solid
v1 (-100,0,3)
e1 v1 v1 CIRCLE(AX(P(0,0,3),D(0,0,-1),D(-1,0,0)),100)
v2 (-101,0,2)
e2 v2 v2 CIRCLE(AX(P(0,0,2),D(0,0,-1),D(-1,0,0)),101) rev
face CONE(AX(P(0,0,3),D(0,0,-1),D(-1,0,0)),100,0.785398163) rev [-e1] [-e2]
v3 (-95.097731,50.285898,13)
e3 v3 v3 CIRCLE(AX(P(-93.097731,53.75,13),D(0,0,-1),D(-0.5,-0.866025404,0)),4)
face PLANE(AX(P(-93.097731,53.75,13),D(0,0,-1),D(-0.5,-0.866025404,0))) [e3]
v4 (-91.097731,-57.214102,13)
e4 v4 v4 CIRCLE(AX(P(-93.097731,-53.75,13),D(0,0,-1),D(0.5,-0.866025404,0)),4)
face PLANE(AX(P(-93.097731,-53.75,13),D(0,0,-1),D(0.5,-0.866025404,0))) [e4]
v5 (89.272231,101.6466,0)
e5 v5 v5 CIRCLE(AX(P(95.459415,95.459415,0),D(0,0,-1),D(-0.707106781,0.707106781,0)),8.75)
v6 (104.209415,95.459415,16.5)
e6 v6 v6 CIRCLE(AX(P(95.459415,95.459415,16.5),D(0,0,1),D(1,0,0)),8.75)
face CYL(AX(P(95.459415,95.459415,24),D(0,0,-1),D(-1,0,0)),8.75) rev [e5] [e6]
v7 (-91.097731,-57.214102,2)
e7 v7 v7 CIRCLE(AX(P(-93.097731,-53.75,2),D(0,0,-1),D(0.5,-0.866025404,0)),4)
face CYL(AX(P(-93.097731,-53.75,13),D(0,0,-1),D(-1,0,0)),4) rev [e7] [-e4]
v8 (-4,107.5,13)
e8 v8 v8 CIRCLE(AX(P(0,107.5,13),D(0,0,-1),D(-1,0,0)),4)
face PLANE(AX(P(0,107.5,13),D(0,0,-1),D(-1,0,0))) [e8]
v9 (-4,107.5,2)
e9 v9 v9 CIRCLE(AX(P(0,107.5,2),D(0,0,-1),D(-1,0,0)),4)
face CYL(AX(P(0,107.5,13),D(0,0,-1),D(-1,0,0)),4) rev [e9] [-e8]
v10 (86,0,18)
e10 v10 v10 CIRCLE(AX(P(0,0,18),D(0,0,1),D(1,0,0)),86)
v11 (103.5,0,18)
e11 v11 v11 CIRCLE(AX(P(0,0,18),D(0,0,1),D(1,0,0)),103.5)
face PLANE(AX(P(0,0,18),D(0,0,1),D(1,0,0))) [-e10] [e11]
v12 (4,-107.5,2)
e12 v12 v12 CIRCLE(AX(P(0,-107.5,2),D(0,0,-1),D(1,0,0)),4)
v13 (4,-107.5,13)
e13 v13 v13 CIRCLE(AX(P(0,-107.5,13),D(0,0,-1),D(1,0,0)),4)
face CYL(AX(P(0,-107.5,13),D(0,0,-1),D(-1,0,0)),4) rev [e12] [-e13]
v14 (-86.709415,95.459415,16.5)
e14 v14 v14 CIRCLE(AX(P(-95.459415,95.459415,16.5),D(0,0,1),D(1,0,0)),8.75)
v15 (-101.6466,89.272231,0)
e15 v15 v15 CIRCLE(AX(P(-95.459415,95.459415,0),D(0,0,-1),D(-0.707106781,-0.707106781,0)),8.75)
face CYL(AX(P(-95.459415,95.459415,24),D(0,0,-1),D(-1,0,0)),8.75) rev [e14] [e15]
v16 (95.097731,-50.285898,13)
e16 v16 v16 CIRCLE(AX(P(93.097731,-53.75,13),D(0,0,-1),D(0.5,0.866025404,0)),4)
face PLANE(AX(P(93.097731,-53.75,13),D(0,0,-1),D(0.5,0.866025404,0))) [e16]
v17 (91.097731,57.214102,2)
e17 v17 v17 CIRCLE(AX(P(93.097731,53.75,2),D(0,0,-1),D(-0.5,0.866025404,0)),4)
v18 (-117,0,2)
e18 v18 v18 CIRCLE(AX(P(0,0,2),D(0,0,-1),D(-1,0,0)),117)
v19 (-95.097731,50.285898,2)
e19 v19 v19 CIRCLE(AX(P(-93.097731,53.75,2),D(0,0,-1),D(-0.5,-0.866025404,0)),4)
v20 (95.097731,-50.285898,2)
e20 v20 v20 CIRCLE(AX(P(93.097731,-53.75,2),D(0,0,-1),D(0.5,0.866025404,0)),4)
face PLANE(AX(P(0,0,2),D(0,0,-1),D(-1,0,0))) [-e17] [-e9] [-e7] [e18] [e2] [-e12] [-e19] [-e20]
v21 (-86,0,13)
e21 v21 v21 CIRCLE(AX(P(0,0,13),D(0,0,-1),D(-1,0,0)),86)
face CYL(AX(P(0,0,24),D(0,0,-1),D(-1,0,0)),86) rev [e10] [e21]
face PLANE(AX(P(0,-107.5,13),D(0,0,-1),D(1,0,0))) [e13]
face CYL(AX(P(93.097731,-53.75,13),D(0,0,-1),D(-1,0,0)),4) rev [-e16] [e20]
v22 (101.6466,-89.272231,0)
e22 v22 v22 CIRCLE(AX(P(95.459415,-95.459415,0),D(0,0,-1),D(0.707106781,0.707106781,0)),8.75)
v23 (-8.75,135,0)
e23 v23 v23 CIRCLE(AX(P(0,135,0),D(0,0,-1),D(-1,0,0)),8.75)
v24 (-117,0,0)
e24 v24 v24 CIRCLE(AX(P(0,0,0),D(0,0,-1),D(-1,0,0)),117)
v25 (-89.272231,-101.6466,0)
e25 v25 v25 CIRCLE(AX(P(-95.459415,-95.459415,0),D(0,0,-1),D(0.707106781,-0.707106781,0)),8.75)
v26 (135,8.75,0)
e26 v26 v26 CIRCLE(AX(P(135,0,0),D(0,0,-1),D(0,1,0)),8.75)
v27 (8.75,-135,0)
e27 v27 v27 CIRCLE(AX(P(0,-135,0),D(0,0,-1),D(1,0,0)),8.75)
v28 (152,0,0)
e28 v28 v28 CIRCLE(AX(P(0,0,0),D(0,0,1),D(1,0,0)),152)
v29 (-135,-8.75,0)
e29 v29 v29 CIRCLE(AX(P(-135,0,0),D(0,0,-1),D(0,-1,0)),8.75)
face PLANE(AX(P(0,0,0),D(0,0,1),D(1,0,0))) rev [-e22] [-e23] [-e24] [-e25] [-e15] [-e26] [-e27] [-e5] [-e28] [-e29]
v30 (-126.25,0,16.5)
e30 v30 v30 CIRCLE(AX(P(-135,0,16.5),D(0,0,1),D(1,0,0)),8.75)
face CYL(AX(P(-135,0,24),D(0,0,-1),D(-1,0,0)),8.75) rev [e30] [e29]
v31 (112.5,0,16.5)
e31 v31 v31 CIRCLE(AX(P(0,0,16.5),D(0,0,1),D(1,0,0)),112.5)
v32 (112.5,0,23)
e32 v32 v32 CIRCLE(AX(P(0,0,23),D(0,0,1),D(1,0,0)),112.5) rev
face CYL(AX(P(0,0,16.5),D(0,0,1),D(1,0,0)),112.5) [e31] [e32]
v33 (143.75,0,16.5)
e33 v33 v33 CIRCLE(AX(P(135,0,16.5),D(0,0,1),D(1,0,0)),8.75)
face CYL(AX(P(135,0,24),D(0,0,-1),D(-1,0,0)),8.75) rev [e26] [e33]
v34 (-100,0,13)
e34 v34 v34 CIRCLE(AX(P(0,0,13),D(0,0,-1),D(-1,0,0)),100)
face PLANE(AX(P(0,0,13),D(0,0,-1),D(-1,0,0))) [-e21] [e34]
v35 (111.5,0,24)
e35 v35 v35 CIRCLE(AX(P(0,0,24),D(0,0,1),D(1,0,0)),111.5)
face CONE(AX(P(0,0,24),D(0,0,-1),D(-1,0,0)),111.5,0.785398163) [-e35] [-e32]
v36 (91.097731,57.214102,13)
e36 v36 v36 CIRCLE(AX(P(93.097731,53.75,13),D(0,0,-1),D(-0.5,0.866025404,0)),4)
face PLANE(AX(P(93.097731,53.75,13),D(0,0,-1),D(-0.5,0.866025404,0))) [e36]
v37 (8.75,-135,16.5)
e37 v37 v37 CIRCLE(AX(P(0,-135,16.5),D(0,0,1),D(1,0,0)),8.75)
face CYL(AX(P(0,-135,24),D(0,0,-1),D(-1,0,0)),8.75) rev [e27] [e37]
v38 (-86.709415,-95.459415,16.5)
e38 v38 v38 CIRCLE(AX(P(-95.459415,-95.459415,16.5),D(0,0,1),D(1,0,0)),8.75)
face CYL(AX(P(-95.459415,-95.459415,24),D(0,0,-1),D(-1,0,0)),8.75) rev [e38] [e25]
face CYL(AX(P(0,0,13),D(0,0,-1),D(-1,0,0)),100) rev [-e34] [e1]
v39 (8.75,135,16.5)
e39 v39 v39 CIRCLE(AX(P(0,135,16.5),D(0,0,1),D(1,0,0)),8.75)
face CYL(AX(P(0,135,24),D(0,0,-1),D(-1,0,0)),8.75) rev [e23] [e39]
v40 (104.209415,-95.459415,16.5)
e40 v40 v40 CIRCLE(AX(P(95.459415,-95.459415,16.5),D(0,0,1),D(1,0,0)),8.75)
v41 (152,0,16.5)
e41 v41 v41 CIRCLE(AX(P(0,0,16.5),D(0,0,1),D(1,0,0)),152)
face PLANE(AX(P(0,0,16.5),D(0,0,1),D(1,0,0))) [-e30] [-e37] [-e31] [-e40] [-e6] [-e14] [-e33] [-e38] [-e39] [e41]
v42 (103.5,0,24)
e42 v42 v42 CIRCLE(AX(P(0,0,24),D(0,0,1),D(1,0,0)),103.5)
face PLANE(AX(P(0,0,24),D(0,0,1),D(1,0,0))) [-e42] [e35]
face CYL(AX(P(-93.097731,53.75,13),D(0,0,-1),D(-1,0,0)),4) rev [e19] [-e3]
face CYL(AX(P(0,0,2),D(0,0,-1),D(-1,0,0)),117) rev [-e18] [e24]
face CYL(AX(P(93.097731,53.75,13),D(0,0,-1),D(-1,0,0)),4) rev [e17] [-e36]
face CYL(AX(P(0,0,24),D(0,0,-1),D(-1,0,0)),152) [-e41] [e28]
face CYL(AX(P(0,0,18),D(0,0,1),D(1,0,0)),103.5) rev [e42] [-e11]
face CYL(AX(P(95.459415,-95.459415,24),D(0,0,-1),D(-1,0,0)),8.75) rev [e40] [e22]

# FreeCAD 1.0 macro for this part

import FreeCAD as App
import Part
import Sketcher

V = App.Vector
Q = App.Units.Quantity


def edges_at(feature, points):
    """Names of the edges that pass closest to the given points."""
    edges = feature.Shape.Edges
    near = lambda p: min(range(len(edges)), key=lambda i: edges[i].distToShape(Part.Vertex(*p))[0])
    return sorted({f"Edge{near(p) + 1}" for p in points})

doc = App.newDocument("Part")
body = doc.addObject("PartDesign::Body", "Body")

# Sketch on XY plane
sketch1 = doc.addObject("Sketcher::SketchObject", "Sketch")
body.addObject(sketch1)
sketch1.AttachmentSupport = (doc.XY_Plane, [""])
sketch1.MapMode = "FlatFace"
sketch1.addGeometry([
    Part.Circle(V(0, 0, 0), V(0, 0, 1), 152),
    Part.Circle(V(0, 0, 0), V(0, 0, 1), 86),
], False)
sketch1.addConstraint([
    Sketcher.Constraint("Coincident", 0, 3, -1, 1),
    Sketcher.Constraint("Coincident", 1, 3, -1, 1),
    Sketcher.Constraint("Diameter", 0, Q("304 mm")),
    Sketcher.Constraint("Diameter", 1, Q("172 mm")),
])
pad1 = doc.addObject("PartDesign::Pad", "Pad")
body.addObject(pad1)
pad1.Profile = sketch1
pad1.Length = 24

# Sketch on XY plane
sketch2 = doc.addObject("Sketcher::SketchObject", "Sketch001")
body.addObject(sketch2)
sketch2.AttachmentSupport = (doc.XY_Plane, [""])
sketch2.MapMode = "FlatFace"
sketch2.AttachmentOffset = App.Placement(V(0, 0, 16.5), App.Rotation())
sketch2.addGeometry([
    Part.Circle(V(0, 0, 0), V(0, 0, 1), 152),
    Part.Circle(V(0, 0, 0), V(0, 0, 1), 112.5),
], False)
sketch2.addConstraint([
    Sketcher.Constraint("Coincident", 0, 3, -1, 1),
    Sketcher.Constraint("Coincident", 1, 3, -1, 1),
    Sketcher.Constraint("Diameter", 0, Q("304 mm")),
    Sketcher.Constraint("Diameter", 1, Q("225 mm")),
])
pocket1 = doc.addObject("PartDesign::Pocket", "Pocket")
body.addObject(pocket1)
pocket1.Profile = sketch2
pocket1.Length = 7.5
pocket1.Reversed = True

# Sketch on XY plane
sketch3 = doc.addObject("Sketcher::SketchObject", "Sketch002")
body.addObject(sketch3)
sketch3.AttachmentSupport = (doc.XY_Plane, [""])
sketch3.MapMode = "FlatFace"
sketch3.AttachmentOffset = App.Placement(V(0, 0, 24), App.Rotation())
sketch3.addGeometry(Part.Circle(V(0, 0, 0), V(0, 0, 1), 103.5), False)
sketch3.addConstraint([
    Sketcher.Constraint("Coincident", 0, 3, -1, 1),
    Sketcher.Constraint("Diameter", 0, Q("207 mm")),
])
pocket2 = doc.addObject("PartDesign::Pocket", "Pocket001")
body.addObject(pocket2)
pocket2.Profile = sketch3
pocket2.Length = 6
doc.recompute()

chamfer = doc.addObject("PartDesign::Chamfer", "Chamfer")
body.addObject(chamfer)
chamfer.Base = (pocket2, edges_at(pocket2, [(-112.5, 0, 24)]))
chamfer.Size = 1

# Sketch on XY plane
sketch4 = doc.addObject("Sketcher::SketchObject", "Sketch003")
body.addObject(sketch4)
sketch4.AttachmentSupport = (doc.XY_Plane, [""])
sketch4.MapMode = "FlatFace"
sketch4.addGeometry(Part.Circle(V(0, 0, 0), V(0, 0, 1), 117), False)
sketch4.addConstraint([
    Sketcher.Constraint("Coincident", 0, 3, -1, 1),
    Sketcher.Constraint("Diameter", 0, Q("234 mm")),
])
pocket3 = doc.addObject("PartDesign::Pocket", "Pocket002")
body.addObject(pocket3)
pocket3.Profile = sketch4
pocket3.Length = 2
pocket3.Reversed = True

# Sketch on XY plane
sketch5 = doc.addObject("Sketcher::SketchObject", "Sketch004")
body.addObject(sketch5)
sketch5.AttachmentSupport = (doc.XY_Plane, [""])
sketch5.MapMode = "FlatFace"
sketch5.AttachmentOffset = App.Placement(V(0, 0, 2), App.Rotation())
sketch5.addGeometry(Part.Circle(V(0, 0, 0), V(0, 0, 1), 100), False)
sketch5.addConstraint([
    Sketcher.Constraint("Coincident", 0, 3, -1, 1),
    Sketcher.Constraint("Diameter", 0, Q("200 mm")),
])
pocket4 = doc.addObject("PartDesign::Pocket", "Pocket003")
body.addObject(pocket4)
pocket4.Profile = sketch5
pocket4.Length = 11
pocket4.Reversed = True
doc.recompute()

chamfer2 = doc.addObject("PartDesign::Chamfer", "Chamfer001")
body.addObject(chamfer2)
chamfer2.Base = (pocket4, edges_at(pocket4, [(100, 0, 2)]))
chamfer2.Size = 1

# Sketch on XY plane
sketch6 = doc.addObject("Sketcher::SketchObject", "Sketch005")
body.addObject(sketch6)
sketch6.AttachmentSupport = (doc.XY_Plane, [""])
sketch6.MapMode = "FlatFace"
sketch6.AttachmentOffset = App.Placement(V(0, 0, 2), App.Rotation())
sketch6.addGeometry(Part.Circle(V(0, 107.5, 0), V(0, 0, 1), 4), False)
sketch6.addConstraint([
    Sketcher.Constraint("PointOnObject", 0, 3, -2),
    Sketcher.Constraint("Diameter", 0, Q("8 mm")),
    Sketcher.Constraint("DistanceY", -1, 1, 0, 3, Q("107.5 mm")),
])
pocket5 = doc.addObject("PartDesign::Pocket", "Pocket004")
body.addObject(pocket5)
pocket5.Profile = sketch6
pocket5.Length = 11
pocket5.Reversed = True
doc.recompute()

polarpattern = doc.addObject("PartDesign::PolarPattern", "PolarPattern")
body.addObject(polarpattern)
polarpattern.Originals = [pocket5]
polarpattern.Axis = (doc.Z_Axis, [""])
polarpattern.Angle = 360
polarpattern.Occurrences = 6
body.Tip = polarpattern

# Sketch on XY plane
sketch7 = doc.addObject("Sketcher::SketchObject", "Sketch006")
body.addObject(sketch7)
sketch7.AttachmentSupport = (doc.XY_Plane, [""])
sketch7.MapMode = "FlatFace"
sketch7.addGeometry(Part.Circle(V(0, 135, 0), V(0, 0, 1), 8.75), False)
sketch7.addConstraint([
    Sketcher.Constraint("PointOnObject", 0, 3, -2),
    Sketcher.Constraint("Diameter", 0, Q("17.5 mm")),
    Sketcher.Constraint("DistanceY", -1, 1, 0, 3, Q("135 mm")),
])
pocket6 = doc.addObject("PartDesign::Pocket", "Pocket005")
body.addObject(pocket6)
pocket6.Profile = sketch7
pocket6.Type = "ThroughAll"
pocket6.Reversed = True
doc.recompute()

polarpattern2 = doc.addObject("PartDesign::PolarPattern", "PolarPattern001")
body.addObject(polarpattern2)
polarpattern2.Originals = [pocket6]
polarpattern2.Axis = (doc.Z_Axis, [""])
polarpattern2.Angle = 360
polarpattern2.Occurrences = 8
body.Tip = polarpattern2

doc.recompute()
